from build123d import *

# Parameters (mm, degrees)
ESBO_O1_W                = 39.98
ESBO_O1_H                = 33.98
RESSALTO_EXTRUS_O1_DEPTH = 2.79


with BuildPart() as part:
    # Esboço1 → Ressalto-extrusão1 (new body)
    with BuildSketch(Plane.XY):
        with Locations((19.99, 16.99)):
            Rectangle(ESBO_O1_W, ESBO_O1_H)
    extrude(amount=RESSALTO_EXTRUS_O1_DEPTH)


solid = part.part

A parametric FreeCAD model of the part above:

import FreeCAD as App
import Part
import Sketcher

V = App.Vector
Q = App.Units.Quantity


def add_polygon(sketch, points):
    """Adds a closed chain of lines whose ends are joined by coincident constraints."""
    first, n = sketch.GeometryCount, len(points)
    for a, b in zip(points, points[1:] + points[:1]):
        sketch.addGeometry(Part.LineSegment(App.Vector(*a, 0), App.Vector(*b, 0)), False)
    for i in range(n):
        sketch.addConstraint(Sketcher.Constraint("Coincident", first + i, 2, first + (i + 1) % n, 1))

doc = App.newDocument("Part")
params = doc.addObject("Spreadsheet::Sheet", "Params")
for row, (alias, value) in enumerate([
    ("sketch1_width", "39.98 mm"),
    ("sketch1_height", "33.98 mm"),
    ("pad1_length", "2.79 mm"),
], start=1):
    params.set(f"A{row}", alias)
    params.set(f"B{row}", "=" + value)
    params.setAlias(f"B{row}", alias)

body = doc.addObject("PartDesign::Body", "Body")

sketch1 = body.newObject("Sketcher::SketchObject", "Sketch")
sketch1.AttachmentSupport = (doc.getObject("XY_Plane"), [""])
sketch1.MapMode = "FlatFace"
add_polygon(sketch1, [(0, 34), (0, 0), (40, 0), (40, 34)])
sketch1.addConstraint([
    Sketcher.Constraint("Vertical", 0),
    Sketcher.Constraint("Horizontal", 1),
    Sketcher.Constraint("Vertical", 2),
    Sketcher.Constraint("Horizontal", 3),
    Sketcher.Constraint("Coincident", 0, 2, -1, 1),
    Sketcher.Constraint("DistanceX", 1, 1, 1, 2, Q("39.98 mm")),
    Sketcher.Constraint("DistanceY", 0, 2, 0, 1, Q("33.98 mm")),
])
sketch1.setExpression("Constraints[9]", "Params.sketch1_width")
sketch1.setExpression("Constraints[10]", "Params.sketch1_height")
pad1 = body.newObject("PartDesign::Pad", "Pad")
pad1.Profile = sketch1
pad1.setExpression("Length", "Params.pad1_length")

doc.recompute()
